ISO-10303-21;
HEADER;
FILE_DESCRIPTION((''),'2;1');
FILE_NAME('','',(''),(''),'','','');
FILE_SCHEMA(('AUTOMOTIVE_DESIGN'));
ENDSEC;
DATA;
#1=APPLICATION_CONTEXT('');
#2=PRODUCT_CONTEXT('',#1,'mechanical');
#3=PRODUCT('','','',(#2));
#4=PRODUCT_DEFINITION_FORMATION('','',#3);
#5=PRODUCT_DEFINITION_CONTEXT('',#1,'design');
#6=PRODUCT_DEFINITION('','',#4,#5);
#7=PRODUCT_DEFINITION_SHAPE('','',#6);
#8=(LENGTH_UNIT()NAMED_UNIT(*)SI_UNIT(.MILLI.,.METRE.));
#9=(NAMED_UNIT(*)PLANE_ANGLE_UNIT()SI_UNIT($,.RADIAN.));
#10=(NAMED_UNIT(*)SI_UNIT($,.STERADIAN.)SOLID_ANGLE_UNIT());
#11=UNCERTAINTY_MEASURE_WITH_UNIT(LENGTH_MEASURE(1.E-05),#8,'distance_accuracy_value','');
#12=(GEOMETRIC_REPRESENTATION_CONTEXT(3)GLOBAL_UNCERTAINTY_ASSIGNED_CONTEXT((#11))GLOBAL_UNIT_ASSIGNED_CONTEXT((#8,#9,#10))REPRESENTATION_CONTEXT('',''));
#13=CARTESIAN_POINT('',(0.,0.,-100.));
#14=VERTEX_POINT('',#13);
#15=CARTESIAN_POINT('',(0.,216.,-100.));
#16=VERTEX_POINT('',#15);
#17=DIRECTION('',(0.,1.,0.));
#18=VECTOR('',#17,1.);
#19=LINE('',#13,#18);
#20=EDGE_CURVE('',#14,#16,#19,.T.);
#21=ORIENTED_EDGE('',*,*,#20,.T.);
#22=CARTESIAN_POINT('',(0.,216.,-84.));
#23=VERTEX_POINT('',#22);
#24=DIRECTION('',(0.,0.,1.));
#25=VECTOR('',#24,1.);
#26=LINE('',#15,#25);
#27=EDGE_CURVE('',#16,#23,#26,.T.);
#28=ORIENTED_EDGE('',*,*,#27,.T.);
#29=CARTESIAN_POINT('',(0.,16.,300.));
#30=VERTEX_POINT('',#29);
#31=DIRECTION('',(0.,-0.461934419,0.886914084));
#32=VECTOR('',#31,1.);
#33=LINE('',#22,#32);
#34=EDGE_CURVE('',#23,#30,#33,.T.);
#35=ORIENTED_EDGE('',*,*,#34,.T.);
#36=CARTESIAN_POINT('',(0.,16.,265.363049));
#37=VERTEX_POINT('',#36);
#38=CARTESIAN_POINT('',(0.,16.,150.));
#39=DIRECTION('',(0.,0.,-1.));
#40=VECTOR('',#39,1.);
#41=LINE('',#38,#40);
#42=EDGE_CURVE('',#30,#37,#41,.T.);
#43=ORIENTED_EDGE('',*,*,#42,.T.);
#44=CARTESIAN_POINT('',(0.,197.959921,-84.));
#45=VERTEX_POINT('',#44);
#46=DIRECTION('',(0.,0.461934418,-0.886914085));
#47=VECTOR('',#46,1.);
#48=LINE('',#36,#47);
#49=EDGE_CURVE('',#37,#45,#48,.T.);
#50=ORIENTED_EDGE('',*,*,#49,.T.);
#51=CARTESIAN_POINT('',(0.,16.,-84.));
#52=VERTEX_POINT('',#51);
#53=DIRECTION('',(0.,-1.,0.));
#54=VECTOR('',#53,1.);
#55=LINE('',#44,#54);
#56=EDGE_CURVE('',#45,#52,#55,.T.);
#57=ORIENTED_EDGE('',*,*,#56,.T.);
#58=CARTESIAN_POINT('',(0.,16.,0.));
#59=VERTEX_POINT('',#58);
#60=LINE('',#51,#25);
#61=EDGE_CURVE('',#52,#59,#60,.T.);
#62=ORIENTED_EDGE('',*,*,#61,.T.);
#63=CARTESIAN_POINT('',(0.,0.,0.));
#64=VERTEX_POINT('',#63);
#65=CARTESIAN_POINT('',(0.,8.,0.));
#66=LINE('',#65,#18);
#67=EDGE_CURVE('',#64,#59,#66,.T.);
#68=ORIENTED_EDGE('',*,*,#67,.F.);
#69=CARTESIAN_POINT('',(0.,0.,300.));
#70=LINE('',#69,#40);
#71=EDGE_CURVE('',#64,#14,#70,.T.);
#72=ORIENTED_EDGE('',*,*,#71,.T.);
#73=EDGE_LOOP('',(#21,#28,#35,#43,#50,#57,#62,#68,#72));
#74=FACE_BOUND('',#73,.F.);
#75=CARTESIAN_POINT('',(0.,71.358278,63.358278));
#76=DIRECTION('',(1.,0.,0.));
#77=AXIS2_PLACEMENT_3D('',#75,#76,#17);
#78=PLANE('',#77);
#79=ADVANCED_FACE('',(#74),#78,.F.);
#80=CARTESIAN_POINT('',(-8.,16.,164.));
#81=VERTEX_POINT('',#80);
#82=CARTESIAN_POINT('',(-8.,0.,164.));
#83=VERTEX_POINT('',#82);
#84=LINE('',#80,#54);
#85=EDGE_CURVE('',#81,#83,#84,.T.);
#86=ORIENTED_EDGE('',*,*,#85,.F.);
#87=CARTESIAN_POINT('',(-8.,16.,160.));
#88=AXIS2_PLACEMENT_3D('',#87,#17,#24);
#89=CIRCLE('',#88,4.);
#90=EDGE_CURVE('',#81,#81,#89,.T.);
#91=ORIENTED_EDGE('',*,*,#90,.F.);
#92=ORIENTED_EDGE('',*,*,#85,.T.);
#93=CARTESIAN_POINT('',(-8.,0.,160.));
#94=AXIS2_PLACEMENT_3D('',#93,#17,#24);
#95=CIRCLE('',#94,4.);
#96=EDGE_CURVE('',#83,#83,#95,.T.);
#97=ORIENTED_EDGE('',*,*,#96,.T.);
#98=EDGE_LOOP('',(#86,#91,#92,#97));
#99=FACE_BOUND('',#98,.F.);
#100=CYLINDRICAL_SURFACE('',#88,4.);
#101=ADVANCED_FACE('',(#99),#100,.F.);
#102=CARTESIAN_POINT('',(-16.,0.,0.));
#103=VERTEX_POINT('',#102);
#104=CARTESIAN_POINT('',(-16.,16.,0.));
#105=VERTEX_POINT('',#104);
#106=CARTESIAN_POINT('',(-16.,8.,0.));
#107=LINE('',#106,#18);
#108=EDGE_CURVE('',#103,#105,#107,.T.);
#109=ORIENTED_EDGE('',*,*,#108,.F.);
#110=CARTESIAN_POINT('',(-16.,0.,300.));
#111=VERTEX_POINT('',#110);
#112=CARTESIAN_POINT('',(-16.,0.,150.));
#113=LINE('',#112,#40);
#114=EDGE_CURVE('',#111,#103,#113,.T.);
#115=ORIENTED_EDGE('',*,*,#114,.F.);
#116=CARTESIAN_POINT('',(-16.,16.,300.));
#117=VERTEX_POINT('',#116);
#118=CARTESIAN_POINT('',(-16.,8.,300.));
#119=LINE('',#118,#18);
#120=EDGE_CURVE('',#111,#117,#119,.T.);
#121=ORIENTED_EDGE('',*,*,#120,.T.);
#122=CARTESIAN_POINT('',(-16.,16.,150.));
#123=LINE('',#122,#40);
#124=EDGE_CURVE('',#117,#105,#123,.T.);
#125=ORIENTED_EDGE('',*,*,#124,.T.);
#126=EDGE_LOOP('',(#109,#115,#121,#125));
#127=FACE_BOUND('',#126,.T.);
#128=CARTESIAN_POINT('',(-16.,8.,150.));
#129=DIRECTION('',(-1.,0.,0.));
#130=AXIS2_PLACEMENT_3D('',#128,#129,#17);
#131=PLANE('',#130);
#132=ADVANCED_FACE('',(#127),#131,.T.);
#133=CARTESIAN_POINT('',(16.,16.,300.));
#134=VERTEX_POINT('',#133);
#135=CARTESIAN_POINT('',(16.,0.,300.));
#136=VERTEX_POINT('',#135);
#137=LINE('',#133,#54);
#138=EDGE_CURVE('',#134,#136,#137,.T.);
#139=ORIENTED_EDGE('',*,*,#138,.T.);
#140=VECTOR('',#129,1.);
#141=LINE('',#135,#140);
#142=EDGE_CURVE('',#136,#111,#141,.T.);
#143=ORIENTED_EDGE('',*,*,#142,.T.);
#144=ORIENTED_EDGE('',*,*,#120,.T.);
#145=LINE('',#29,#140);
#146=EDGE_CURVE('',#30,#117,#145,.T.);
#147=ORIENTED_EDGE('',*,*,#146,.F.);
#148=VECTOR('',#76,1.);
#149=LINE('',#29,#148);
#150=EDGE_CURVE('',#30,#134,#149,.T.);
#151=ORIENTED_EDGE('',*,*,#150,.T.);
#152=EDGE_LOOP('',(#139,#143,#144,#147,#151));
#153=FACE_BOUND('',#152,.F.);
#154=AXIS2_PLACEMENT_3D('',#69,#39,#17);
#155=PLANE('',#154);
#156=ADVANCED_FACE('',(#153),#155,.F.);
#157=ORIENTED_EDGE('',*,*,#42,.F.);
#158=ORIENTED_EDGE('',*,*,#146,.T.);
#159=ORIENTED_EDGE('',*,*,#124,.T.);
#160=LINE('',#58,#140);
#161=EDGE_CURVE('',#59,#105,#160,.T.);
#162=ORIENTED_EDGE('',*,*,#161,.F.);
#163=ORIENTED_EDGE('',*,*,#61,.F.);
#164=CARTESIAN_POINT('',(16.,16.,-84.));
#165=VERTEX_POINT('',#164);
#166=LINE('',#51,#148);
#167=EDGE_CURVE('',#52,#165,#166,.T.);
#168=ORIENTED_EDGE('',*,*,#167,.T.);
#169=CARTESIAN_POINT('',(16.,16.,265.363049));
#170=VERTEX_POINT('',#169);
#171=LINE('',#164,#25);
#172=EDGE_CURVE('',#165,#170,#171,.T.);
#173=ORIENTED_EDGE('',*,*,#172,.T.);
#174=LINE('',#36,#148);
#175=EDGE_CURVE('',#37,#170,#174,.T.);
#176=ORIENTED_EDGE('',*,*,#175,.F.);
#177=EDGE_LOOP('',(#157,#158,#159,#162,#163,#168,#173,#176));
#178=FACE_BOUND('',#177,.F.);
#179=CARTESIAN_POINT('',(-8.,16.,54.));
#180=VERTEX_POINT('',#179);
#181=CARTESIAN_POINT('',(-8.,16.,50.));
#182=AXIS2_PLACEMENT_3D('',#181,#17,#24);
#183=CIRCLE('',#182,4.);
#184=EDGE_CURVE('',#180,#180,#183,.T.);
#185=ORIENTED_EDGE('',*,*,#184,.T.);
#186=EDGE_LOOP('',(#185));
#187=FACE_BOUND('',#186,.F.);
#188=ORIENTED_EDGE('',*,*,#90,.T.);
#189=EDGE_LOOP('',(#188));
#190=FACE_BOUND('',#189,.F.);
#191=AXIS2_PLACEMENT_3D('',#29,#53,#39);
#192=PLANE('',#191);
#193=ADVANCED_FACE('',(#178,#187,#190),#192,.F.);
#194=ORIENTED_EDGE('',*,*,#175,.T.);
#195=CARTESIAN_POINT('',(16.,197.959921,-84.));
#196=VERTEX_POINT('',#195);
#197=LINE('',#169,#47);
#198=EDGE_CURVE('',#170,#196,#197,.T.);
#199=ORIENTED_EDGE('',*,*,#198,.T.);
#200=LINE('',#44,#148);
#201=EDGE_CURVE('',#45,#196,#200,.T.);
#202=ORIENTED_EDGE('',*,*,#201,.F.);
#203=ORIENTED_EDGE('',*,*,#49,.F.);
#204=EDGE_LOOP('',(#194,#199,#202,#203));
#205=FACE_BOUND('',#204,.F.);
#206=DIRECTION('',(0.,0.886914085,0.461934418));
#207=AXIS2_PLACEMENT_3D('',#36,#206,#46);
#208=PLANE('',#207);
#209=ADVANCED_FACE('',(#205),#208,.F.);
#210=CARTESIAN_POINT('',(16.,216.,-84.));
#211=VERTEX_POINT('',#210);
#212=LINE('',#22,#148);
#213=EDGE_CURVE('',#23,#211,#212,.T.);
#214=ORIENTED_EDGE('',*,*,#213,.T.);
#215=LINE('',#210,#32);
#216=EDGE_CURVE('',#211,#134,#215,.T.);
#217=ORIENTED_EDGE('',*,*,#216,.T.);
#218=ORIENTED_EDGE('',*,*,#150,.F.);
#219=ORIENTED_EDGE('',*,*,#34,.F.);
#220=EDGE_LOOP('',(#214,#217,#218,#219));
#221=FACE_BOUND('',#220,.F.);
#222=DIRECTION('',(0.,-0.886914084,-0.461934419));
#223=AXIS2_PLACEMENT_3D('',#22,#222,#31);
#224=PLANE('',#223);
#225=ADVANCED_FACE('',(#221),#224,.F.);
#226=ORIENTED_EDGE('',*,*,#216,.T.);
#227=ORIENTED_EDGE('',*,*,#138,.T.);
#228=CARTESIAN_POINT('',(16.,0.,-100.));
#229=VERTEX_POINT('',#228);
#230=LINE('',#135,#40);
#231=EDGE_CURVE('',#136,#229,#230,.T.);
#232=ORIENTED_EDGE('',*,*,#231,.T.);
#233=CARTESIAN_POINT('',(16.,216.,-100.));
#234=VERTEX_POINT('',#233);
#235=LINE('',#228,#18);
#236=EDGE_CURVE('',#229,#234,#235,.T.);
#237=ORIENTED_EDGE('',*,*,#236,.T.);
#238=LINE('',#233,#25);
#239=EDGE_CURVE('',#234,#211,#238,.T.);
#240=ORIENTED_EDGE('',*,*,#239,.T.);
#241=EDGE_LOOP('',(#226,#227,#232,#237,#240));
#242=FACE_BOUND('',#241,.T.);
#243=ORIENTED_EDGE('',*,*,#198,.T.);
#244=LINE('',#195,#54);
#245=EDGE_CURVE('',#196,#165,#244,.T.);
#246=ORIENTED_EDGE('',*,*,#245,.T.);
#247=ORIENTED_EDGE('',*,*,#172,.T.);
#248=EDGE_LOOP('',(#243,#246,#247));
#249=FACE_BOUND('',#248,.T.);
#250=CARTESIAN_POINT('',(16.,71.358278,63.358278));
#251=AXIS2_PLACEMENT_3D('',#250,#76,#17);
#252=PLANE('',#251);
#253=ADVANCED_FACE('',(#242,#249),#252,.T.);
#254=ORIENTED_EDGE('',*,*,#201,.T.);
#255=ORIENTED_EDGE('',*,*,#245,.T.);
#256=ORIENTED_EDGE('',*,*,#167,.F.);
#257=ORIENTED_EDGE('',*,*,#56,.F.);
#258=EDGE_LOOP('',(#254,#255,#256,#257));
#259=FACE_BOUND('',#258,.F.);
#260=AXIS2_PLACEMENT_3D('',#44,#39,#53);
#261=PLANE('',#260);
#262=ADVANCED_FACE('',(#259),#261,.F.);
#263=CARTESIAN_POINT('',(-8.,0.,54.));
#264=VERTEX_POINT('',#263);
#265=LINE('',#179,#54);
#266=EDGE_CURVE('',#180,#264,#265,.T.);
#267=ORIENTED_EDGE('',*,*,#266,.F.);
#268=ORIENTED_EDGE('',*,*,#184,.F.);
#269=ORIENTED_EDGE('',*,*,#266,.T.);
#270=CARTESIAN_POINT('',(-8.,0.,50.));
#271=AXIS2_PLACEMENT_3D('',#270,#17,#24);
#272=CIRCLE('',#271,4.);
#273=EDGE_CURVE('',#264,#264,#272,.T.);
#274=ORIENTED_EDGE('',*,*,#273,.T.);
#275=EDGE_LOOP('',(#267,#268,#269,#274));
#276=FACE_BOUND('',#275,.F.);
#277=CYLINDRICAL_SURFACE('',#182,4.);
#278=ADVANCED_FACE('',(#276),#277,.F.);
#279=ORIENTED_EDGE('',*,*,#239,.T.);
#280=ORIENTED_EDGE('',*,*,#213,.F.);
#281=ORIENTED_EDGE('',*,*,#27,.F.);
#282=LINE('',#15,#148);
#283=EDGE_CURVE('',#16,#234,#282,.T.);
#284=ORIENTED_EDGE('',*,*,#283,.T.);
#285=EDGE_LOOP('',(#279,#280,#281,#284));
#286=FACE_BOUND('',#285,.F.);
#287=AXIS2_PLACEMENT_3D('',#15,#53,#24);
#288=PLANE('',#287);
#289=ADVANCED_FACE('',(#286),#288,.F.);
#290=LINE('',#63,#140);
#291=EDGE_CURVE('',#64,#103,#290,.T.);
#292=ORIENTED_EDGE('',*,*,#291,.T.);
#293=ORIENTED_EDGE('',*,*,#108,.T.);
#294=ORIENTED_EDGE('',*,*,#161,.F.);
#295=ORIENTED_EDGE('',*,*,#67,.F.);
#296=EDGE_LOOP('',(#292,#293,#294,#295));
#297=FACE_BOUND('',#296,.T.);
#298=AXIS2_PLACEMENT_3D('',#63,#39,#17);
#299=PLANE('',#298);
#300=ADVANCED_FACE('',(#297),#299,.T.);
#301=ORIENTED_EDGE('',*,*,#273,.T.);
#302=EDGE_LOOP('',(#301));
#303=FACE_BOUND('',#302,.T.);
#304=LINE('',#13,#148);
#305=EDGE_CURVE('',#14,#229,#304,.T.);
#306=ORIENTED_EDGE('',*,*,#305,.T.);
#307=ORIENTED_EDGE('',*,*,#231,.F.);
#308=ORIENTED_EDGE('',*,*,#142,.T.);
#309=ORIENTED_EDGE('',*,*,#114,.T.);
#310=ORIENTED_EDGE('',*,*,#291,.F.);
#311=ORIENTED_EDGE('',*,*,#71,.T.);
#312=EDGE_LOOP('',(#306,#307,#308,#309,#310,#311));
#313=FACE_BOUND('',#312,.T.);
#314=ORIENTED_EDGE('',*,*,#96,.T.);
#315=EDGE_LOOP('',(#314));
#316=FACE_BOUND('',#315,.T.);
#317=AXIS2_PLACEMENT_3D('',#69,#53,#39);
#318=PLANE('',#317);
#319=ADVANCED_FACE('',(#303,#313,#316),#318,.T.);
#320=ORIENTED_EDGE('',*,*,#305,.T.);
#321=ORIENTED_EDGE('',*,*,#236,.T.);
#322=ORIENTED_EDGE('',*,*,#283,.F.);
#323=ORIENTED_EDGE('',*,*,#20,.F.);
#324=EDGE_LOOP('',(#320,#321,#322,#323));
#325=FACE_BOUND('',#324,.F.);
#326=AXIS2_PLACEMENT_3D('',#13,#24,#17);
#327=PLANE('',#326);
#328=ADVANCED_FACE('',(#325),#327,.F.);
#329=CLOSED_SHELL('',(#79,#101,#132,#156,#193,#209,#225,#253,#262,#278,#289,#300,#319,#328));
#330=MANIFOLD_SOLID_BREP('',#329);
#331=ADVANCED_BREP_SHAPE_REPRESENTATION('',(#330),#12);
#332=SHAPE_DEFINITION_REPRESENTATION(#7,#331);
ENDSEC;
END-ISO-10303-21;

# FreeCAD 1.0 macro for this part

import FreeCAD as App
import Part
import Sketcher
Q = App.Units.Quantity

doc = App.newDocument("Part")
params = doc.addObject("Spreadsheet::Sheet", "Params")
for row, (alias, value) in enumerate([
    ("sketch1_width", "216 mm"),
    ("sketch1_width2", "16 mm"),
    ("sketch1_height", "400 mm"),
    ("pad1_length", "16 mm"),
    ("sketch2_width", "16 mm"),
    ("sketch2_height", "300 mm"),
    ("pad2_length", "16 mm"),
    ("sketch3_diameter", "8 mm"),
], start=1):
    params.set(f"A{row}", alias)
    params.set(f"B{row}", "=" + value)
    params.setAlias(f"B{row}", alias)

body = doc.addObject("PartDesign::Body", "Body")

# Sketch on YZ plane
sketch1 = body.newObject("Sketcher::SketchObject", "Sketch")
sketch1.AttachmentSupport = (doc.getObject("YZ_Plane"), [""])
sketch1.MapMode = "FlatFace"
sketch1.addGeometry(Part.LineSegment(App.Vector(0, -100, 0), App.Vector(216, -100, 0)), False)
sketch1.addGeometry(Part.LineSegment(App.Vector(216, -100, 0), App.Vector(216, -84, 0)), False)
sketch1.addGeometry(Part.LineSegment(App.Vector(216, -84, 0), App.Vector(16, 300, 0)), False)
sketch1.addGeometry(Part.LineSegment(App.Vector(16, 300, 0), App.Vector(0, 300, 0)), False)
sketch1.addGeometry(Part.LineSegment(App.Vector(0, 300, 0), App.Vector(0, -100, 0)), False)
sketch1.addGeometry(Part.LineSegment(App.Vector(16, -84, 0), App.Vector(16, 265, 0)), False)
sketch1.addGeometry(Part.LineSegment(App.Vector(16, 265, 0), App.Vector(198, -84, 0)), False)
sketch1.addGeometry(Part.LineSegment(App.Vector(198, -84, 0), App.Vector(16, -84, 0)), False)
sketch1.addConstraint(Sketcher.Constraint("Coincident", 0, 2, 1, 1))
sketch1.addConstraint(Sketcher.Constraint("Coincident", 1, 2, 2, 1))
sketch1.addConstraint(Sketcher.Constraint("Coincident", 2, 2, 3, 1))
sketch1.addConstraint(Sketcher.Constraint("Coincident", 3, 2, 4, 1))
sketch1.addConstraint(Sketcher.Constraint("Coincident", 4, 2, 0, 1))
sketch1.addConstraint(Sketcher.Constraint("Coincident", 5, 2, 6, 1))
sketch1.addConstraint(Sketcher.Constraint("Coincident", 6, 2, 7, 1))
sketch1.addConstraint(Sketcher.Constraint("Coincident", 7, 2, 5, 1))
sketch1.addConstraint(Sketcher.Constraint("Horizontal", 0))
sketch1.addConstraint(Sketcher.Constraint("Vertical", 1))
sketch1.addConstraint(Sketcher.Constraint("Horizontal", 3))
sketch1.addConstraint(Sketcher.Constraint("Vertical", 4))
sketch1.addConstraint(Sketcher.Constraint("Vertical", 5))
sketch1.addConstraint(Sketcher.Constraint("Horizontal", 7))
sketch1.addConstraint(Sketcher.Constraint("PointOnObject", 3, 2, -2))
sketch1.addConstraint(Sketcher.Constraint("Parallel", 2, 6))
sketch1.addConstraint(Sketcher.Constraint("Horizontal", 1, 2, 6, 2))
sketch1.addConstraint(Sketcher.Constraint("Vertical", 2, 2, 5, 2))
sketch1.addConstraint(Sketcher.Constraint("Equal", 3, 1))
sketch1.addConstraint(Sketcher.Constraint("DistanceX", 0, 1, 0, 2, Q("216 mm")))
sketch1.addConstraint(Sketcher.Constraint("DistanceX", 3, 2, 3, 1, Q("16 mm")))
sketch1.addConstraint(Sketcher.Constraint("DistanceY", 4, 2, 4, 1, Q("400 mm")))
sketch1.addConstraint(Sketcher.Constraint("DistanceY", 0, 2, -1, 1, Q("100 mm")))
sketch1.addConstraint(Sketcher.Constraint("DistanceX", 7, 2, 7, 1, Q("181.959921 mm")))
sketch1.setExpression("Constraints[19]", "Params.sketch1_width")
sketch1.setExpression("Constraints[20]", "Params.sketch1_width2")
sketch1.setExpression("Constraints[21]", "Params.sketch1_height")
pad1 = body.newObject("PartDesign::Pad", "Pad")
pad1.Profile = sketch1
pad1.setExpression("Length", "Params.pad1_length")

# Sketch on YZ plane
sketch2 = body.newObject("Sketcher::SketchObject", "Sketch001")
sketch2.AttachmentSupport = (doc.getObject("YZ_Plane"), [""])
sketch2.MapMode = "FlatFace"
sketch2.addGeometry(Part.LineSegment(App.Vector(0, 0, 0), App.Vector(0, 300, 0)), False)
sketch2.addGeometry(Part.LineSegment(App.Vector(0, 300, 0), App.Vector(16, 300, 0)), False)
sketch2.addGeometry(Part.LineSegment(App.Vector(16, 300, 0), App.Vector(16, 0, 0)), False)
sketch2.addGeometry(Part.LineSegment(App.Vector(16, 0, 0), App.Vector(0, 0, 0)), False)
sketch2.addConstraint(Sketcher.Constraint("Coincident", 0, 2, 1, 1))
sketch2.addConstraint(Sketcher.Constraint("Coincident", 1, 2, 2, 1))
sketch2.addConstraint(Sketcher.Constraint("Coincident", 2, 2, 3, 1))
sketch2.addConstraint(Sketcher.Constraint("Coincident", 3, 2, 0, 1))
sketch2.addConstraint(Sketcher.Constraint("Vertical", 0))
sketch2.addConstraint(Sketcher.Constraint("Horizontal", 1))
sketch2.addConstraint(Sketcher.Constraint("Vertical", 2))
sketch2.addConstraint(Sketcher.Constraint("Horizontal", 3))
sketch2.addConstraint(Sketcher.Constraint("Coincident", 3, 2, -1, 1))
sketch2.addConstraint(Sketcher.Constraint("DistanceX", 1, 1, 1, 2, Q("16 mm")))
sketch2.addConstraint(Sketcher.Constraint("DistanceY", 0, 1, 0, 2, Q("300 mm")))
sketch2.setExpression("Constraints[9]", "Params.sketch2_width")
sketch2.setExpression("Constraints[10]", "Params.sketch2_height")
pad2 = body.newObject("PartDesign::Pad", "Pad001")
pad2.Profile = sketch2
pad2.setExpression("Length", "Params.pad2_length")
pad2.Reversed = True

# Sketch on XZ plane
sketch3 = body.newObject("Sketcher::SketchObject", "Sketch002")
sketch3.AttachmentSupport = (doc.getObject("XZ_Plane"), [""])
sketch3.MapMode = "FlatFace"
sketch3.AttachmentOffset = App.Placement(App.Vector(0, 0, -16), App.Rotation())
sketch3.addGeometry(Part.Circle(App.Vector(-8, 50, 0), App.Vector(0, 0, 1), 4), False)
sketch3.addGeometry(Part.Circle(App.Vector(-8, 160, 0), App.Vector(0, 0, 1), 4), False)
sketch3.addConstraint(Sketcher.Constraint("Equal", 0, 1))
sketch3.addConstraint(Sketcher.Constraint("Vertical", 0, 3, 1, 3))
sketch3.addConstraint(Sketcher.Constraint("Diameter", 0, Q("8 mm")))
sketch3.addConstraint(Sketcher.Constraint("DistanceX", 0, 3, -1, 1, Q("8 mm")))
sketch3.addConstraint(Sketcher.Constraint("DistanceY", -1, 1, 0, 3, Q("50 mm")))
sketch3.addConstraint(Sketcher.Constraint("DistanceY", -1, 1, 1, 3, Q("160 mm")))
sketch3.setExpression("Constraints[2]", "Params.sketch3_diameter")
pocket1 = body.newObject("PartDesign::Pocket", "Pocket")
pocket1.Profile = sketch3
pocket1.Type = "ThroughAll"
pocket1.Reversed = True

doc.recompute()
